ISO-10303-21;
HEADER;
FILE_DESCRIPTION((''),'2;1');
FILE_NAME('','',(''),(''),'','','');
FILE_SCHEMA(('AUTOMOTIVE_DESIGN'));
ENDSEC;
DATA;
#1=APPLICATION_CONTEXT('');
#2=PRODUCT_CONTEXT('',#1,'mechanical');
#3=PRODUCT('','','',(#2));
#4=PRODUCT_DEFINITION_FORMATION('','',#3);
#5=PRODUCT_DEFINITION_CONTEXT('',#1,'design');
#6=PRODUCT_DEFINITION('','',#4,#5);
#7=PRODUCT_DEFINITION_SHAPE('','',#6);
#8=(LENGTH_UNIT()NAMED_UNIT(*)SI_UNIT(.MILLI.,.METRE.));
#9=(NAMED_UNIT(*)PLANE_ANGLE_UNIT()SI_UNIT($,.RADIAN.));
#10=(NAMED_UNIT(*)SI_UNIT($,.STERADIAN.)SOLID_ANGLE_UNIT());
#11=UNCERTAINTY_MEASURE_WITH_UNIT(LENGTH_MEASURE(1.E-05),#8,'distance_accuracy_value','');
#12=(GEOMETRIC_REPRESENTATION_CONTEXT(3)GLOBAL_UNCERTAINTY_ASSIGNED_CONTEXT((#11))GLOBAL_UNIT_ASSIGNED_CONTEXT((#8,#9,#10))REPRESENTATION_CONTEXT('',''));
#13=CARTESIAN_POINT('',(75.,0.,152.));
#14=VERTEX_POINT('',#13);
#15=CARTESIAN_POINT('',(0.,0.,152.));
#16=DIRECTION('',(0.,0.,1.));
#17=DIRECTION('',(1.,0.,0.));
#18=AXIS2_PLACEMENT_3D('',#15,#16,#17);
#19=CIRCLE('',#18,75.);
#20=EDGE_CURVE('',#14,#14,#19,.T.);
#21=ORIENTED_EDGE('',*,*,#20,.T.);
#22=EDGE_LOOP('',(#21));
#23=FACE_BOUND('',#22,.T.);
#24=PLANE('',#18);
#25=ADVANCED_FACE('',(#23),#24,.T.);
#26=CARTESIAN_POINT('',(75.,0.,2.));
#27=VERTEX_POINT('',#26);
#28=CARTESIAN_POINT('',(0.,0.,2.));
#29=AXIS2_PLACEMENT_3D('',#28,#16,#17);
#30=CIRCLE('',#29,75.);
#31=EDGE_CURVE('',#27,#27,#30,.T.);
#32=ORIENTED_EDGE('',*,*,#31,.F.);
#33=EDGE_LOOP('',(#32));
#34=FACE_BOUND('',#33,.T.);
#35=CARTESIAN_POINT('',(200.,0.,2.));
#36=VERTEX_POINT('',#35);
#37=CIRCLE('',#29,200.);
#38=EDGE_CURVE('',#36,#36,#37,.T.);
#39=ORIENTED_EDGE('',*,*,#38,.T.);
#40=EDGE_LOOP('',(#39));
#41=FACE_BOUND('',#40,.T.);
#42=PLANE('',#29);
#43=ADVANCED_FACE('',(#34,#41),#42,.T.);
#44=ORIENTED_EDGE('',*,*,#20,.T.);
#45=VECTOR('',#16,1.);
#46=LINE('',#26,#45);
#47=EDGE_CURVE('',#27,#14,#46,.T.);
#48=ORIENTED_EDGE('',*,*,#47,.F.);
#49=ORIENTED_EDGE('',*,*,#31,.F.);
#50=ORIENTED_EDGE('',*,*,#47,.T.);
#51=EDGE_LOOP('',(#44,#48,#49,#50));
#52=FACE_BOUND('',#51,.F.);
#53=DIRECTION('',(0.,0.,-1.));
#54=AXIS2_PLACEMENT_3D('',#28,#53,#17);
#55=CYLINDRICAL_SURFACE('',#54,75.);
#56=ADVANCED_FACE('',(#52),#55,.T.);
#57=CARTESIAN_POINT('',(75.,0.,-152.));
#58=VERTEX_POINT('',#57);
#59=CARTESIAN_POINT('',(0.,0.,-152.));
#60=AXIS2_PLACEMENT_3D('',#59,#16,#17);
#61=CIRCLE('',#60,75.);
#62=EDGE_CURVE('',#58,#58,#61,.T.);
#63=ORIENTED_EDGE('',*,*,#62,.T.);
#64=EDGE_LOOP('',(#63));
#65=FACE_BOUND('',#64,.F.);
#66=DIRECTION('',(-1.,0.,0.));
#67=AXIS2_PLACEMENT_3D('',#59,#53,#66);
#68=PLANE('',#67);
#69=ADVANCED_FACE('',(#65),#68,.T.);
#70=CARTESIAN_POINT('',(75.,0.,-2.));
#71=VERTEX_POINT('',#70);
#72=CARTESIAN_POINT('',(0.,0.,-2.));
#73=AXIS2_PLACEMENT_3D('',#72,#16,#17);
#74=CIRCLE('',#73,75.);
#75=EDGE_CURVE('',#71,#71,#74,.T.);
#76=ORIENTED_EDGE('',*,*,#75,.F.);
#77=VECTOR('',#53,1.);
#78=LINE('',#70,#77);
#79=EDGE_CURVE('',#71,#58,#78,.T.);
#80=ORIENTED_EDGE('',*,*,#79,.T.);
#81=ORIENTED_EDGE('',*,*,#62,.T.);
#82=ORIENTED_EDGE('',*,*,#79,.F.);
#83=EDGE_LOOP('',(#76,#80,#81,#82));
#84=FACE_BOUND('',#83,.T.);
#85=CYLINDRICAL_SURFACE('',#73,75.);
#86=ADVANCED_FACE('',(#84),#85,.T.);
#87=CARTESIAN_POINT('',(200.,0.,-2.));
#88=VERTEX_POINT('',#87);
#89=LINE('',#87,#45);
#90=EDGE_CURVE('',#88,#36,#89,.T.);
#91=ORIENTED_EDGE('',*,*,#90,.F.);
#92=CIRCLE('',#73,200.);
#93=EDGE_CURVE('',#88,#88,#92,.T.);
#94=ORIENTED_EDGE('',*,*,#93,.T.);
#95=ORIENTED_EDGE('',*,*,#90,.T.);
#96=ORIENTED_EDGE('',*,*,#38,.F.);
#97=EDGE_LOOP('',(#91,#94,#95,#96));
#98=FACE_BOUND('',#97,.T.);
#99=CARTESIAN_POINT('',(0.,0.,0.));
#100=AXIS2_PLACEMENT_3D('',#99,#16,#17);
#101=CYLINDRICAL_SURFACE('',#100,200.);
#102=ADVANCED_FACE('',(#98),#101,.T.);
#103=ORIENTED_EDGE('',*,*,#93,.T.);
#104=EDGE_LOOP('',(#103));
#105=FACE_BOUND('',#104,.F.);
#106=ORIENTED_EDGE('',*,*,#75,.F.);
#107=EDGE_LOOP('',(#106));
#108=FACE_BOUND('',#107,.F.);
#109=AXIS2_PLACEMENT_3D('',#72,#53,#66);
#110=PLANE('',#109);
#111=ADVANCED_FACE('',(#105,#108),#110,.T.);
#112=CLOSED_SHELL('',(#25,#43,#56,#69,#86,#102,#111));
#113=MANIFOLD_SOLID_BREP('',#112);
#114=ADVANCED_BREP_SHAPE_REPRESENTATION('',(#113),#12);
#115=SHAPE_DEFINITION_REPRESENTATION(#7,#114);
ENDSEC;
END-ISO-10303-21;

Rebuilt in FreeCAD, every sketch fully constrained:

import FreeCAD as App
import Part
import Sketcher
from FreeCAD import Vector
Q = App.Units.Quantity

doc = App.newDocument("Part")
body = doc.addObject("PartDesign::Body", "Body")

# Sketch on XY plane
sketch1 = body.newObject("Sketcher::SketchObject", "Sketch")
sketch1.AttachmentSupport = (doc.getObject("XY_Plane"), [""])
sketch1.MapMode = "FlatFace"
sketch1.addGeometry(Part.Circle(Vector(0, 0, 0), Vector(0, 0, 1), 200), False)
sketch1.addConstraint(Sketcher.Constraint("Coincident", 0, 3, -1, 1))
sketch1.addConstraint(Sketcher.Constraint("Diameter", 0, Q("400 mm")))
pad1 = body.newObject("PartDesign::Pad", "Pad")
pad1.Profile = sketch1
pad1.Length = 2

# Sketch on XY plane
sketch2 = body.newObject("Sketcher::SketchObject", "Sketch001")
sketch2.AttachmentSupport = (doc.getObject("XY_Plane"), [""])
sketch2.MapMode = "FlatFace"
sketch2.AttachmentOffset = App.Placement(Vector(0, 0, 2), App.Rotation())
sketch2.addGeometry(Part.Circle(Vector(0, 0, 0), Vector(0, 0, 1), 75), False)
sketch2.addConstraint(Sketcher.Constraint("Coincident", 0, 3, -1, 1))
sketch2.addConstraint(Sketcher.Constraint("Diameter", 0, Q("150 mm")))
pad2 = body.newObject("PartDesign::Pad", "Pad001")
pad2.Profile = sketch2
pad2.Length = 150
body2 = doc.addObject("PartDesign::Body", "Body001")
doc.recompute()

body2.BaseFeature = body
doc.recompute()

mirroring = doc.addObject("Part::Mirroring", "Mirroring")
mirroring.Source = body
mirroring.Base = Vector(0, 0, 0)
mirroring.Normal = Vector(0, 0, -1)
body3 = doc.addObject("PartDesign::Body", "Body002")
body3.BaseFeature = mirroring
boolean = body2.newObject("PartDesign::Boolean", "Boolean")
boolean.Type = "Fuse"
boolean.addObjects([body3])
doc.recompute()
mirroring.Visibility = False

doc.recompute()
